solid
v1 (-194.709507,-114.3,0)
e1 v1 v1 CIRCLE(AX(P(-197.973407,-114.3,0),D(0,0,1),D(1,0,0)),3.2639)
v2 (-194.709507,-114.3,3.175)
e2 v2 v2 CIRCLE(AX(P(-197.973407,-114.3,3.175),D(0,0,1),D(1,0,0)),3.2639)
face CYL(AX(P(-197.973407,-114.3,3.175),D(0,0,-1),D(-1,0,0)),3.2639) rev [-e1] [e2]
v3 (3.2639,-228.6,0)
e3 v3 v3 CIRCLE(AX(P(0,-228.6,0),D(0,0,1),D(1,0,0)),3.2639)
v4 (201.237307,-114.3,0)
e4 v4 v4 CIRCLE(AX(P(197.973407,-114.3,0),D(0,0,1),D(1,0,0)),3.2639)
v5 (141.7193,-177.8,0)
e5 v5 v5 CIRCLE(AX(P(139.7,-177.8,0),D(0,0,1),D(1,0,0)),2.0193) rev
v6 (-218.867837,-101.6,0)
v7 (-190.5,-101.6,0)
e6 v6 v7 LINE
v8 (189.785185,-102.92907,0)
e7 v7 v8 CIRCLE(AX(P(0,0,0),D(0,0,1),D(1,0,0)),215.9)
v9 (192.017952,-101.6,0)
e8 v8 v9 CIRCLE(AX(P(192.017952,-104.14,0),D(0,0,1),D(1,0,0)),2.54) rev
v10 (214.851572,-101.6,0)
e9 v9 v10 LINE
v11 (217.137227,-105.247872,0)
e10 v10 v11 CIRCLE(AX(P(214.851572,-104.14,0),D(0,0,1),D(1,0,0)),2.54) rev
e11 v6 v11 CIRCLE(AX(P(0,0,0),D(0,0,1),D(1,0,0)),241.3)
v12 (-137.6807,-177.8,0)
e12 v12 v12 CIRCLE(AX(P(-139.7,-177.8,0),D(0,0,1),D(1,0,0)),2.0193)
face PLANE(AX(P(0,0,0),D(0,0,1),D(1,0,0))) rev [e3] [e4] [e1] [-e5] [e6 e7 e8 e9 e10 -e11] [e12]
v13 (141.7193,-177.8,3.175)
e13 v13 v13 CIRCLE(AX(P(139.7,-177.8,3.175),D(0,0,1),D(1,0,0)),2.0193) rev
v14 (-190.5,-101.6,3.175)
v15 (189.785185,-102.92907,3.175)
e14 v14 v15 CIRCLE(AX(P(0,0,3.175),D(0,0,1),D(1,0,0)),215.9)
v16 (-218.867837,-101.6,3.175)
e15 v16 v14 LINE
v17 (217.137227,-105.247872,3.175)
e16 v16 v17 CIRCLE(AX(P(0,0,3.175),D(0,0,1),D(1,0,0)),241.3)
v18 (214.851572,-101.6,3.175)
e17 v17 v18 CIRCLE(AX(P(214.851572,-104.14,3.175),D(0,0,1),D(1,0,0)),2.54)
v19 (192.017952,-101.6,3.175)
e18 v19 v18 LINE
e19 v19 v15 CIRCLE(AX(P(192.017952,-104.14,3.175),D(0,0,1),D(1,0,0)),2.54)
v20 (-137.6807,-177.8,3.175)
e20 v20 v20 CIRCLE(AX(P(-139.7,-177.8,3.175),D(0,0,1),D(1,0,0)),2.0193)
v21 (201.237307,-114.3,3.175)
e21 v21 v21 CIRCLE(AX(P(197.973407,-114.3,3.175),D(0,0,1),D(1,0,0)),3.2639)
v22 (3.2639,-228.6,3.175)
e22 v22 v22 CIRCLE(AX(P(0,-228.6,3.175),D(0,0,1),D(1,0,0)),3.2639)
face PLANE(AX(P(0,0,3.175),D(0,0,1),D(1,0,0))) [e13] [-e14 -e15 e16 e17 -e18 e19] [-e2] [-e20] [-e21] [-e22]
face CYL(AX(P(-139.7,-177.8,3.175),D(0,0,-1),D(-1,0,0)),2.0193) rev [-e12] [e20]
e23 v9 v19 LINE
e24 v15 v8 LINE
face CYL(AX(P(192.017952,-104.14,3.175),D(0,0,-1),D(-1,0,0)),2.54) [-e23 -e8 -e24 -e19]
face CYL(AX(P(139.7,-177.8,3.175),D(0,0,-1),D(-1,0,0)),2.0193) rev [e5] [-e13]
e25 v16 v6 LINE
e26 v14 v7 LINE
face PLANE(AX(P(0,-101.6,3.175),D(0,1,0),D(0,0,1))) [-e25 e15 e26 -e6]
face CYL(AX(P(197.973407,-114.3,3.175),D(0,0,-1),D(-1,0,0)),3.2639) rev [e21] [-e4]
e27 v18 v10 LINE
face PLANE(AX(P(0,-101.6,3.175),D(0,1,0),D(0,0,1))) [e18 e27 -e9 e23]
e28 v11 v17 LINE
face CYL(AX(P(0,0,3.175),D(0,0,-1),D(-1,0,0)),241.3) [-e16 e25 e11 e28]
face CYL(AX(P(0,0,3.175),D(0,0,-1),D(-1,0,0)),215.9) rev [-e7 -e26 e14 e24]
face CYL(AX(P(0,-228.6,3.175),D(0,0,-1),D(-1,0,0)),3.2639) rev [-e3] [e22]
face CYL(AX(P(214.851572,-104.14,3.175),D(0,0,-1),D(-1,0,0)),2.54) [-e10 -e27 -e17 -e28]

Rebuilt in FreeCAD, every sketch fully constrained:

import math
import FreeCAD as App
import Part
import Sketcher
Q = App.Units.Quantity


def edges_at(feature, points):
    """Names of the edges that pass closest to the given points."""
    edges = feature.Shape.Edges
    near = lambda p: min(range(len(edges)), key=lambda i: edges[i].distToShape(Part.Vertex(*p))[0])
    return sorted({f"Edge{near(p) + 1}" for p in points})

doc = App.newDocument("Part")
body = doc.addObject("PartDesign::Body", "Body")

sketch1 = doc.addObject("Sketcher::SketchObject", "Sketch")
body.addObject(sketch1)
sketch1.AttachmentSupport = (doc.XY_Plane, [""])
sketch1.MapMode = "FlatFace"
sketch1.addGeometry([
    Part.LineSegment(App.Vector(-190.5, -101.6, 0), App.Vector(-218.9, -101.6, 0)),
    Part.ArcOfCircle(Part.Circle(App.Vector(0, 0, 0), App.Vector(0, 0, 1), 241.3), math.radians(-155), math.radians(-25)),
    Part.LineSegment(App.Vector(218.9, -101.6, 0), App.Vector(190.5, -101.6, 0)),
    Part.ArcOfCircle(Part.Circle(App.Vector(0, 0, 0), App.Vector(0, 0, 1), 215.9), math.radians(-152), math.radians(-28)),
    Part.Circle(App.Vector(-139.7, -177.8, 0), App.Vector(0, 0, 1), 2),
    Part.Circle(App.Vector(0, -228.6, 0), App.Vector(0, 0, 1), 3.3),
    Part.Circle(App.Vector(139.7, -177.8, 0), App.Vector(0, 0, 1), 2),
    Part.Circle(App.Vector(-198, -114.3, 0), App.Vector(0, 0, 1), 3.3),
    Part.Circle(App.Vector(198, -114.3, 0), App.Vector(0, 0, 1), 3.3),
], False)
sketch1.addConstraint([
    Sketcher.Constraint("Coincident", 0, 2, 1, 1),
    Sketcher.Constraint("Coincident", 1, 2, 2, 1),
    Sketcher.Constraint("Coincident", 2, 2, 3, 2),
    Sketcher.Constraint("Coincident", 3, 1, 0, 1),
    Sketcher.Constraint("Horizontal", 0),
    Sketcher.Constraint("Horizontal", 2),
    Sketcher.Constraint("Coincident", 1, 3, -1, 1),
    Sketcher.Constraint("Coincident", 3, 3, -1, 1),
    Sketcher.Constraint("Equal", 4, 6),
    Sketcher.Constraint("Equal", 5, 7),
    Sketcher.Constraint("Equal", 7, 8),
    Sketcher.Constraint("Symmetric", 4, 3, 6, 3, -2),
    Sketcher.Constraint("Symmetric", 7, 3, 8, 3, -2),
    Sketcher.Constraint("PointOnObject", 5, 3, -2),
    Sketcher.Constraint("Horizontal", 0, 2, 1, 2),
    Sketcher.Constraint("Radius", 1, Q("9.5 in")),
    Sketcher.Constraint("Radius", 3, Q("8.5 in")),
    Sketcher.Constraint("Diameter", 4, Q("0.159 in")),
    Sketcher.Constraint("Diameter", 5, Q("0.257 in")),
    Sketcher.Constraint("DistanceY", 4, 3, -1, 1, Q("7 in")),
    Sketcher.Constraint("DistanceY", 5, 3, -1, 1, Q("9 in")),
    Sketcher.Constraint("DistanceY", 0, 2, -1, 1, Q("4 in")),
    Sketcher.Constraint("DistanceX", 4, 3, 6, 3, Q("11 in")),
    Sketcher.Constraint("DistanceY", 7, 3, -1, 1, Q("4.5 in")),
    Sketcher.Constraint("DistanceX", 0, 2, 7, 3, Q("20.89443 mm")),
])
pad1 = doc.addObject("PartDesign::Pad", "Pad")
body.addObject(pad1)
pad1.Profile = sketch1
pad1.Length = Q("0.125 in")
doc.recompute()

fillet = doc.addObject("PartDesign::Fillet", "Fillet")
body.addObject(fillet)
fillet.Base = (pad1, edges_at(pad1, [(190.5, -101.6, 1.587), (218.868, -101.6, 1.587)]))
fillet.Radius = Q("0.1 in")

doc.recompute()
